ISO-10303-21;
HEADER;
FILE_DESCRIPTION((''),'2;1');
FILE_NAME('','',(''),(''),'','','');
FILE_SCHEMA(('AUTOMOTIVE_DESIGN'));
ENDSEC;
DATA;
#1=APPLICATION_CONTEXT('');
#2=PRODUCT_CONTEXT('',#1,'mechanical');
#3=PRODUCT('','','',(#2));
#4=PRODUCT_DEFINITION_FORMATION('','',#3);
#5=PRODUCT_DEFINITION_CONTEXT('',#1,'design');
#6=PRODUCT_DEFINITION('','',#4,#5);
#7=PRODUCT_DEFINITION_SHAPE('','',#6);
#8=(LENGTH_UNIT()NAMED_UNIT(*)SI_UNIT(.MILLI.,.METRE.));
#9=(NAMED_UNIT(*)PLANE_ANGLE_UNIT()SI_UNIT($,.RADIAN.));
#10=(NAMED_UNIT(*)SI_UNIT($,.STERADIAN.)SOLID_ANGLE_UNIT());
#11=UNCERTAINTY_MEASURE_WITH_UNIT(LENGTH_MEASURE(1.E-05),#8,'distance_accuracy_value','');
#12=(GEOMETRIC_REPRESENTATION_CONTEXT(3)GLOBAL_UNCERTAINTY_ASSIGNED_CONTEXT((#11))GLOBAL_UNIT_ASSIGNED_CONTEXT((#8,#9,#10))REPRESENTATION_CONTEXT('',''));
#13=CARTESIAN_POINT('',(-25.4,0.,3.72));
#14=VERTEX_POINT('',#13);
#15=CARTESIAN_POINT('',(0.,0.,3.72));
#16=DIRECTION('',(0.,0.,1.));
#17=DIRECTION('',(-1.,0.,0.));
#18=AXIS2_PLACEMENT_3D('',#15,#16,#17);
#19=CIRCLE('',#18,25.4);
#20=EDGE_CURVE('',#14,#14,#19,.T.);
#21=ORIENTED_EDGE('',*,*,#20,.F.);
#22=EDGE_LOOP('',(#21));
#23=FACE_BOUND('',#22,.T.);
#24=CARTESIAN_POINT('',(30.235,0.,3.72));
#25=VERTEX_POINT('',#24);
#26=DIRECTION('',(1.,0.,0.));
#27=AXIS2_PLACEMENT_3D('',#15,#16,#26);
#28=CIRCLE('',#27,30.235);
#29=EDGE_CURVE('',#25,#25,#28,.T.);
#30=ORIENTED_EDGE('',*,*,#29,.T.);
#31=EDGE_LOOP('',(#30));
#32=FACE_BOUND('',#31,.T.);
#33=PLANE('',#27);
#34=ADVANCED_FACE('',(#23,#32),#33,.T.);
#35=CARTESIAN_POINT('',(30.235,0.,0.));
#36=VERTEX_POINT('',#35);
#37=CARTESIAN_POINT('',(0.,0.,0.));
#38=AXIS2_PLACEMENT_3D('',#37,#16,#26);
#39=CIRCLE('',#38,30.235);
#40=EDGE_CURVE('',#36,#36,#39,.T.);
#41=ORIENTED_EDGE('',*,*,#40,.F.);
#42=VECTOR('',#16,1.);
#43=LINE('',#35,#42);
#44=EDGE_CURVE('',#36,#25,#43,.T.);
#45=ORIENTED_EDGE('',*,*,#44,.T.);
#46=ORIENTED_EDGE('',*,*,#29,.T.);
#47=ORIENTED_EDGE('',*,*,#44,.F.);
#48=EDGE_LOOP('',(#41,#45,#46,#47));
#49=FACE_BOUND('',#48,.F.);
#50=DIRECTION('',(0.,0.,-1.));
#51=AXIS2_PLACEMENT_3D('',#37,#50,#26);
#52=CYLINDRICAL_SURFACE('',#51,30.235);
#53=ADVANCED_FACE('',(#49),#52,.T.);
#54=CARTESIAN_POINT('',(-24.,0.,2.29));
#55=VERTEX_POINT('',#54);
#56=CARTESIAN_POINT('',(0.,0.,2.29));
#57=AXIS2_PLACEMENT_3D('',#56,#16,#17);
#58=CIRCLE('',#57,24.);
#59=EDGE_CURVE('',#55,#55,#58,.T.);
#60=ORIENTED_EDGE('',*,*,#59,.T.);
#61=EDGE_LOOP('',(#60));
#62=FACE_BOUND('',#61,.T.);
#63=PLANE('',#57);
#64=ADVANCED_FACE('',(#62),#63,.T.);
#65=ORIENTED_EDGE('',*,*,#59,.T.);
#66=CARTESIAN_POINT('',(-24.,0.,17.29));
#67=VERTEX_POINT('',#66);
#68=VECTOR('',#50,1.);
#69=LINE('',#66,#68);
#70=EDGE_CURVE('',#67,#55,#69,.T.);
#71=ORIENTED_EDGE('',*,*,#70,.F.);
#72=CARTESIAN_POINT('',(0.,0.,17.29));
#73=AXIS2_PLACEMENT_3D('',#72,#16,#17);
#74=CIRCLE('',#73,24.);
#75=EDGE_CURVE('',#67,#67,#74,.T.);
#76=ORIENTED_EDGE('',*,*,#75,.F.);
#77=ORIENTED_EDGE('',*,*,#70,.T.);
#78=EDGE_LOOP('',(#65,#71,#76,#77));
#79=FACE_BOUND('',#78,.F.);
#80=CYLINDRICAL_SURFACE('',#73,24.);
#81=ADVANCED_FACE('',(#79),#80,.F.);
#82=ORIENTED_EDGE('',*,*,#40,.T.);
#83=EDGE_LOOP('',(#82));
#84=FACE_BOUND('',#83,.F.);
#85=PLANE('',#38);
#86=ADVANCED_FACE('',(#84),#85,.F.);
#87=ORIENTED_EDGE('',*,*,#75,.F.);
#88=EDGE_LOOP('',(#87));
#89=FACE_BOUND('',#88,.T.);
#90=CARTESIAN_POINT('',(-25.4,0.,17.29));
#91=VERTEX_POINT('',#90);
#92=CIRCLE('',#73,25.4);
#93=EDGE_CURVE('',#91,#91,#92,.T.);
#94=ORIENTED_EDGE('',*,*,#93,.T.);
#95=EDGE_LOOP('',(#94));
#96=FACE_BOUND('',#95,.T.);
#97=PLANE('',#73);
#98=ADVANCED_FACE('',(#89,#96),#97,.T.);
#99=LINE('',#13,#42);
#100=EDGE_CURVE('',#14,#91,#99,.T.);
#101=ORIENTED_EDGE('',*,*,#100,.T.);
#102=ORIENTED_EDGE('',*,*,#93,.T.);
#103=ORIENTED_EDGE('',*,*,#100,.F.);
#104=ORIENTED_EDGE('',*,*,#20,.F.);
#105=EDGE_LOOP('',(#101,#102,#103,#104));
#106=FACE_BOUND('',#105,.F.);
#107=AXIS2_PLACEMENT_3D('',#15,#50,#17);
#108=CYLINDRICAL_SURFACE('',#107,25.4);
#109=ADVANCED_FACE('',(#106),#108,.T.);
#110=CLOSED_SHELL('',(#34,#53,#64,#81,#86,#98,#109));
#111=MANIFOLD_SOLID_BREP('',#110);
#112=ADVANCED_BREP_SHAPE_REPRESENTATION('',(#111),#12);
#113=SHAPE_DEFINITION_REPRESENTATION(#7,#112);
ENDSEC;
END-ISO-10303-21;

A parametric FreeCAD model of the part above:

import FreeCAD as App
import Part
import Sketcher

V = App.Vector
Q = App.Units.Quantity

doc = App.newDocument("Part")
params = doc.addObject("Spreadsheet::Sheet", "Params")
for row, (alias, value) in enumerate([
    ("sketch1_diameter", "60.47 mm"),
    ("pad1_length", "3.72 mm"),
    ("sketch2_diameter", "50.8 mm"),
    ("pad2_length", "13.57 mm"),
    ("sketch3_diameter", "48 mm"),
    ("pocket1_length", "15 mm"),
], start=1):
    params.set(f"A{row}", alias)
    params.set(f"B{row}", "=" + value)
    params.setAlias(f"B{row}", alias)

body = doc.addObject("PartDesign::Body", "Body")

# Sketch on XY plane
sketch1 = body.newObject("Sketcher::SketchObject", "Sketch")
sketch1.AttachmentSupport = (doc.getObject("XY_Plane"), [""])
sketch1.MapMode = "FlatFace"
sketch1.addGeometry(Part.Circle(V(0, 0, 0), V(0, 0, 1), 30), False)
sketch1.addConstraint([
    Sketcher.Constraint("Coincident", 0, 3, -1, 1),
    Sketcher.Constraint("Diameter", 0, Q("60.47 mm")),
])
sketch1.setExpression("Constraints[1]", "Params.sketch1_diameter")
pad1 = body.newObject("PartDesign::Pad", "Pad")
pad1.Profile = sketch1
pad1.setExpression("Length", "Params.pad1_length")

# Sketch on XY plane
sketch2 = body.newObject("Sketcher::SketchObject", "Sketch001")
sketch2.AttachmentSupport = (doc.getObject("XY_Plane"), [""])
sketch2.MapMode = "FlatFace"
sketch2.AttachmentOffset = App.Placement(V(0, 0, 3.72), App.Rotation())
sketch2.addGeometry(Part.Circle(V(0, 0, 0), V(0, 0, 1), 25), False)
sketch2.addConstraint([
    Sketcher.Constraint("Coincident", 0, 3, -1, 1),
    Sketcher.Constraint("Diameter", 0, Q("50.8 mm")),
])
sketch2.setExpression("Constraints[1]", "Params.sketch2_diameter")
pad2 = body.newObject("PartDesign::Pad", "Pad001")
pad2.Profile = sketch2
pad2.setExpression("Length", "Params.pad2_length")

# Sketch on XY plane
sketch3 = body.newObject("Sketcher::SketchObject", "Sketch002")
sketch3.AttachmentSupport = (doc.getObject("XY_Plane"), [""])
sketch3.MapMode = "FlatFace"
sketch3.AttachmentOffset = App.Placement(V(0, 0, 17.29), App.Rotation())
sketch3.addGeometry(Part.Circle(V(0, 0, 0), V(0, 0, 1), 24), False)
sketch3.addConstraint([
    Sketcher.Constraint("Coincident", 0, 3, -1, 1),
    Sketcher.Constraint("Diameter", 0, Q("48 mm")),
])
sketch3.setExpression("Constraints[1]", "Params.sketch3_diameter")
pocket1 = body.newObject("PartDesign::Pocket", "Pocket")
pocket1.Profile = sketch3
pocket1.setExpression("Length", "Params.pocket1_length")

doc.recompute()
